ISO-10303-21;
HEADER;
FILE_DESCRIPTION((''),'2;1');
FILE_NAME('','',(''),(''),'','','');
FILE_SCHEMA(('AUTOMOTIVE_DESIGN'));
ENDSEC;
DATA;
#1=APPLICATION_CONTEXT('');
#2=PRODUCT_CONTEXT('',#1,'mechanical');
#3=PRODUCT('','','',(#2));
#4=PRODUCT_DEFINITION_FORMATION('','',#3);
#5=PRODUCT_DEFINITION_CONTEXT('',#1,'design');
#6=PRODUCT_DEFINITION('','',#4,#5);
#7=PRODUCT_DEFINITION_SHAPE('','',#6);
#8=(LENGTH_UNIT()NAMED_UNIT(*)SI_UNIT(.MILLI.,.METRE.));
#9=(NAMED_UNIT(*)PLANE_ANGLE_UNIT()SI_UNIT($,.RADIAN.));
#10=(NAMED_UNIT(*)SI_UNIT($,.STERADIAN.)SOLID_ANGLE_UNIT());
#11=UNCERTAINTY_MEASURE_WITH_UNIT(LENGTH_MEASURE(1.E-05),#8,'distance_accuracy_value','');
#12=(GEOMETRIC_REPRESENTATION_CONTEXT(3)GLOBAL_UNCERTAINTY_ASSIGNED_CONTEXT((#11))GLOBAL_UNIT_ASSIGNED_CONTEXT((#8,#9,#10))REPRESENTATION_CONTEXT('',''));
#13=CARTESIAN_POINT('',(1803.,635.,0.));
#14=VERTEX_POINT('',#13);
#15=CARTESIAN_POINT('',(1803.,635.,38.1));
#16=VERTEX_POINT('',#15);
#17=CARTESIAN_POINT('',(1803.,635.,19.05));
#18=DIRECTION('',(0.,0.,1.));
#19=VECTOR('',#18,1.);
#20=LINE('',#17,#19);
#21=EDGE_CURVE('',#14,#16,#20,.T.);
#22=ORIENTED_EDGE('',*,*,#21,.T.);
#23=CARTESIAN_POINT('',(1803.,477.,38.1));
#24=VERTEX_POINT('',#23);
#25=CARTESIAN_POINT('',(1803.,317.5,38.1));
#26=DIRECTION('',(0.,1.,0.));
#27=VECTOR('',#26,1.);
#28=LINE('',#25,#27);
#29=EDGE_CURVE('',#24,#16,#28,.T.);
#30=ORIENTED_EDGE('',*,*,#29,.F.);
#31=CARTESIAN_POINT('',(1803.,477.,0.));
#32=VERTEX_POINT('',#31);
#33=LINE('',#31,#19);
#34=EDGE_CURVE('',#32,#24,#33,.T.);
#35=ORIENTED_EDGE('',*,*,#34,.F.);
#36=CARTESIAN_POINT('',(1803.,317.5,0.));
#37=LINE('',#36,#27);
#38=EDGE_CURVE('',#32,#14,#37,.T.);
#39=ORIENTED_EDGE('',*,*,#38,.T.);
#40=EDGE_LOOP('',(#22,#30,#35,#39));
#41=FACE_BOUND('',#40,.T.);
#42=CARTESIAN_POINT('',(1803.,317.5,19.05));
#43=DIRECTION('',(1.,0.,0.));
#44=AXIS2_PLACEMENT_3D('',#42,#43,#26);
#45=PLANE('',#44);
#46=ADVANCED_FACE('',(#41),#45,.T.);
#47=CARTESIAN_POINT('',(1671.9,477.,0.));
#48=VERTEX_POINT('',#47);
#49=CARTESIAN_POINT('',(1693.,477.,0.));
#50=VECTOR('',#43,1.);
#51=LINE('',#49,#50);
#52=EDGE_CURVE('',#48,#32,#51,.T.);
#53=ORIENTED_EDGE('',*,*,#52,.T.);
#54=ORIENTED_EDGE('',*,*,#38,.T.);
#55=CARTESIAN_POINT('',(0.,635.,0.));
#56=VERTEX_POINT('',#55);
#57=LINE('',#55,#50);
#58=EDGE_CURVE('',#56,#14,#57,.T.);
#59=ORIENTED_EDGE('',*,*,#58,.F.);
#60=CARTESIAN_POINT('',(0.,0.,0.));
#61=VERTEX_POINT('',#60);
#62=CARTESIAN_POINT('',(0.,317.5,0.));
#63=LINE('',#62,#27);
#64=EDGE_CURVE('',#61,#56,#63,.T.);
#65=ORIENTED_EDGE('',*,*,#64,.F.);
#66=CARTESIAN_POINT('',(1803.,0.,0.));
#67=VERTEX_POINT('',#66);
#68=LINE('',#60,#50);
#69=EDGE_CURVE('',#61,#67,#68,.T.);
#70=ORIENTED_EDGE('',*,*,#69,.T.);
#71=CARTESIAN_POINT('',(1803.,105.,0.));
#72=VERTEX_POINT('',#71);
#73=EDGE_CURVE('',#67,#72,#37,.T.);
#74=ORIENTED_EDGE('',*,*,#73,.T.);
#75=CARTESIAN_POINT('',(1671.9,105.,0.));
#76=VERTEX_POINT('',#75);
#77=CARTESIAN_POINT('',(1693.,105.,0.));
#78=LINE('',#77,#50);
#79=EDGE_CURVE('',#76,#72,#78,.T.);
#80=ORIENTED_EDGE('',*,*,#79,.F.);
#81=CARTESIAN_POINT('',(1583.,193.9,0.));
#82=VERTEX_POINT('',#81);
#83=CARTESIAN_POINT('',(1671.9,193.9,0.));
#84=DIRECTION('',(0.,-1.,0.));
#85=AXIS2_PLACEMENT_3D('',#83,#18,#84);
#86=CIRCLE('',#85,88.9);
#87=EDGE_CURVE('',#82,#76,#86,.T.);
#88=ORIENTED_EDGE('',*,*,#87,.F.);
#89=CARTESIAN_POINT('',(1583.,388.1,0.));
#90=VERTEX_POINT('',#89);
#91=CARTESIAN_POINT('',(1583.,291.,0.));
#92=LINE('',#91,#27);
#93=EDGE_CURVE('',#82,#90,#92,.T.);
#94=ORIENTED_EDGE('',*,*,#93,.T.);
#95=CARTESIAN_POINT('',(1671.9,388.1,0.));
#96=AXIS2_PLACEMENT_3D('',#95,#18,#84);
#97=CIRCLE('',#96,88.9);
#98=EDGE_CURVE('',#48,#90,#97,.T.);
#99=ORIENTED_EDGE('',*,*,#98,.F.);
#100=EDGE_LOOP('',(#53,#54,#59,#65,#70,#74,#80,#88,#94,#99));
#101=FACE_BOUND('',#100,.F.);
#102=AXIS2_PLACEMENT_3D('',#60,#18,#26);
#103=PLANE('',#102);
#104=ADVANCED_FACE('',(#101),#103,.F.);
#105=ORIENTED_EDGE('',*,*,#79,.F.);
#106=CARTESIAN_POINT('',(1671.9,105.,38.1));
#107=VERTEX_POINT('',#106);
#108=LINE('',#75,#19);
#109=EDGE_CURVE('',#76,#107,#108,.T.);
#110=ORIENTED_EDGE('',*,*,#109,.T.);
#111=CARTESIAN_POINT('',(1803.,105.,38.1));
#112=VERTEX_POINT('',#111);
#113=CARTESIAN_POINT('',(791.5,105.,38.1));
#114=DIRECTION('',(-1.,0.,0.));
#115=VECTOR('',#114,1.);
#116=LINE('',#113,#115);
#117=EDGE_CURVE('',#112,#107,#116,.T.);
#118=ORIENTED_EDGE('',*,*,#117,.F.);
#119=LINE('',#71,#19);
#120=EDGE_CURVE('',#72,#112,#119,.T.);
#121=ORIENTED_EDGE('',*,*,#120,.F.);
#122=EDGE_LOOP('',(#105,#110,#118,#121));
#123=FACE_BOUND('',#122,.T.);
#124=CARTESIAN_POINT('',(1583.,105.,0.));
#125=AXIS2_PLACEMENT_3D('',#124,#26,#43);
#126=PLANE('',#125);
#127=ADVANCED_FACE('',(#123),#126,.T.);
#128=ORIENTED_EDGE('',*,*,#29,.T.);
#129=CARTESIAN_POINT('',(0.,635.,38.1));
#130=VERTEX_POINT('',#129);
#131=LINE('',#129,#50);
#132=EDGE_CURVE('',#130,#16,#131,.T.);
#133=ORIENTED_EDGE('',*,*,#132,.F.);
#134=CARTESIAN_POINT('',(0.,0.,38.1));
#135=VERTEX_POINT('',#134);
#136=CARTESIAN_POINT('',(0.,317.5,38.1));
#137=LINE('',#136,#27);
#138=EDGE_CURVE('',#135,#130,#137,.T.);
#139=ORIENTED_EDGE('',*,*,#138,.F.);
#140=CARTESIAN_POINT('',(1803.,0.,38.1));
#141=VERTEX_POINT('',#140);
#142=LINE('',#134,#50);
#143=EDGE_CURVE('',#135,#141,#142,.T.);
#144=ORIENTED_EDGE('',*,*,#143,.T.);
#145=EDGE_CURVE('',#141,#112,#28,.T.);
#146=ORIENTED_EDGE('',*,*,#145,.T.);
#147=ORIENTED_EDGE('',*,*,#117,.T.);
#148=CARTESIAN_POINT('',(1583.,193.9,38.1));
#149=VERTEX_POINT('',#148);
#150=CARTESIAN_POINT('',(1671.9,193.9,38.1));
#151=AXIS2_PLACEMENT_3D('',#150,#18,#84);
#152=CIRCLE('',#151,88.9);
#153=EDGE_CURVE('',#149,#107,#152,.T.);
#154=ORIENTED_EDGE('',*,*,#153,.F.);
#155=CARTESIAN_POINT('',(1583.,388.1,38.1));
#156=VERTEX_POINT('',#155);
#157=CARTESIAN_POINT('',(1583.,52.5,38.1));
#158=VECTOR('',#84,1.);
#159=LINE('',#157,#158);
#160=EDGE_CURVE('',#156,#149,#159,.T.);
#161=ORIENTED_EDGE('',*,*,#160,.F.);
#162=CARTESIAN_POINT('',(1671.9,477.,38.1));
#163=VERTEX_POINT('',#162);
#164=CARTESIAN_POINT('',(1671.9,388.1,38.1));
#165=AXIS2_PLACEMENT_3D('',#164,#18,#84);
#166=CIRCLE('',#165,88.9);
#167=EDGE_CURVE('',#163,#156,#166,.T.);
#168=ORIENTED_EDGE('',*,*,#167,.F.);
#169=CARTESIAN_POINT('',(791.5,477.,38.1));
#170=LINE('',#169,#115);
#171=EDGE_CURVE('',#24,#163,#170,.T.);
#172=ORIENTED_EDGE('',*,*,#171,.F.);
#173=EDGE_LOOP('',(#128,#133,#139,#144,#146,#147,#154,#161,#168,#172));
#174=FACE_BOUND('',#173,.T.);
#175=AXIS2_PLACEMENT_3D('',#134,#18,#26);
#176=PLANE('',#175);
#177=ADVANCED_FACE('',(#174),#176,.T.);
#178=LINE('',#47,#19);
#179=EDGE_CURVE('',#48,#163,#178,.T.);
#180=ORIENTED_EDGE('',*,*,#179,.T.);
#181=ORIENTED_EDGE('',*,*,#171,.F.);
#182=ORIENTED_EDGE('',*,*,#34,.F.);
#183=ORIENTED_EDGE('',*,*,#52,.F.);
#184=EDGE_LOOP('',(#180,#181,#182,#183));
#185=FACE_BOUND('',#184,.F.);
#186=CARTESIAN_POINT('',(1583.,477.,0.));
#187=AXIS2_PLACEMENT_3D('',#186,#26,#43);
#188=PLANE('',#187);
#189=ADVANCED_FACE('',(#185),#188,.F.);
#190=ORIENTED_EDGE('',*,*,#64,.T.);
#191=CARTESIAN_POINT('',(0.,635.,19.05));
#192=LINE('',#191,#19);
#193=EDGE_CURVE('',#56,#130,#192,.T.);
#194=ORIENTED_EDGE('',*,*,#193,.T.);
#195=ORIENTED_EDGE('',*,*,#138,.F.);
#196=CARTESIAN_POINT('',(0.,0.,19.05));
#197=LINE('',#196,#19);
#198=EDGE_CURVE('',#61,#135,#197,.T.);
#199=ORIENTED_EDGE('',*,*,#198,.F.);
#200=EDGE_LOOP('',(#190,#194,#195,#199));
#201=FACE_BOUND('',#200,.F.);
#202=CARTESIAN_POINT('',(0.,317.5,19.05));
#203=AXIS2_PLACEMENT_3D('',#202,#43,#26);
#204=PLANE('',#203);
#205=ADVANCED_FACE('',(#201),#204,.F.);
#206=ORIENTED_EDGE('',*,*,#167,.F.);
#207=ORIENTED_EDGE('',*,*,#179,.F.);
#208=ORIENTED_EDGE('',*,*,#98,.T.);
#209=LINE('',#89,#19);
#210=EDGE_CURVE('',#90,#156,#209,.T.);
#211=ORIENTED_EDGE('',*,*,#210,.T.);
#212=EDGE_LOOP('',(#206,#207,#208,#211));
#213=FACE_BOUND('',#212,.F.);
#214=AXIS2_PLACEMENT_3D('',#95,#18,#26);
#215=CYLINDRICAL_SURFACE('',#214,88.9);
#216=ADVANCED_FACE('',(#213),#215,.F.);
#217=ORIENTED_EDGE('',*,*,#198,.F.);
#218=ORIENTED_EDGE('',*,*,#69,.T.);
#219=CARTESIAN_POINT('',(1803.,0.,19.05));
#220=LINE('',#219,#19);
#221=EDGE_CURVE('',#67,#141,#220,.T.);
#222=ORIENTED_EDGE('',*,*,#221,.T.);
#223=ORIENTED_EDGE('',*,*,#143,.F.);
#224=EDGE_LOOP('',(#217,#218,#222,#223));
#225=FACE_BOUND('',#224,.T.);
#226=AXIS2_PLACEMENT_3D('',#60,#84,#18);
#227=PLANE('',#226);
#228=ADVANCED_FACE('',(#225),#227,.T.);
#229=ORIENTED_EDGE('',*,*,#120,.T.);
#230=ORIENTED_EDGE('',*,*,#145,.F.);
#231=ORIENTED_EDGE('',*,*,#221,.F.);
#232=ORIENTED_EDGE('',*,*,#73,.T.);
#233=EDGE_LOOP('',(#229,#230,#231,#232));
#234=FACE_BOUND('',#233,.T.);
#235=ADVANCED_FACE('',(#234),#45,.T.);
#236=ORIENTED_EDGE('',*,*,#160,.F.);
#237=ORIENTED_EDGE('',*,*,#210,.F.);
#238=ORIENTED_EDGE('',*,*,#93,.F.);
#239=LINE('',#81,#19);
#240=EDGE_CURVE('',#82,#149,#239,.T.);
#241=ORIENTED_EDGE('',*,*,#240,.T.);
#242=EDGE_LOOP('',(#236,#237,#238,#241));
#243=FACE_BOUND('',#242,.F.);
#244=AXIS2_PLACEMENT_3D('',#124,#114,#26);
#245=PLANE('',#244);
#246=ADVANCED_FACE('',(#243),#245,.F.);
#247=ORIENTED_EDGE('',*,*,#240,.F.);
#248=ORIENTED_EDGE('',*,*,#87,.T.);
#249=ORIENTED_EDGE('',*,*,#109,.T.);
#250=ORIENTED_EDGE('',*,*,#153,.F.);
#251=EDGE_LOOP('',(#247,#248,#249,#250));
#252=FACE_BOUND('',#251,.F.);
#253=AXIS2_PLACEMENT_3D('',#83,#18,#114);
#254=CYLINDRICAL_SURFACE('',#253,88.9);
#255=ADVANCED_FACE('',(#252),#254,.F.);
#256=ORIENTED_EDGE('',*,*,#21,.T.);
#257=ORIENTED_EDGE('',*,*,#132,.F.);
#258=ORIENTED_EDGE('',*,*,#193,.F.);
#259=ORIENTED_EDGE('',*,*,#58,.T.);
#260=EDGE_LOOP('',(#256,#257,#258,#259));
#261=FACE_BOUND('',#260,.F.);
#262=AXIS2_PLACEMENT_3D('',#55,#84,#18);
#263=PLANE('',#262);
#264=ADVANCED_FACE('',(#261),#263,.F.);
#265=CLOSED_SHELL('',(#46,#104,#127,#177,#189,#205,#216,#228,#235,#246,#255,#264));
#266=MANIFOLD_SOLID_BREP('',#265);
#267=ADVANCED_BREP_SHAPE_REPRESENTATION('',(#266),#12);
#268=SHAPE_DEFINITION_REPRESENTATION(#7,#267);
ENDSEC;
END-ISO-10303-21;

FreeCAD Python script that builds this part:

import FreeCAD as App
import Part
import Sketcher

V = App.Vector


def edges_at(feature, points):
    """Names of the edges that pass closest to the given points."""
    edges = feature.Shape.Edges
    near = lambda p: min(range(len(edges)), key=lambda i: edges[i].distToShape(Part.Vertex(*p))[0])
    return sorted({f"Edge{near(p) + 1}" for p in points})

doc = App.newDocument("Part")
body = doc.addObject("PartDesign::Body", "Body")

sketch1 = doc.addObject("Sketcher::SketchObject", "Sketch")
body.addObject(sketch1)
sketch1.AttachmentSupport = (doc.YZ_Plane, [""])
sketch1.MapMode = "FlatFace"
sketch1.addGeometry([
    Part.LineSegment(V(0, 38, 0), V(0, 0, 0)),
    Part.LineSegment(V(0, 0, 0), V(635, 0, 0)),
    Part.LineSegment(V(635, 0, 0), V(635, 38, 0)),
    Part.LineSegment(V(635, 38, 0), V(0, 38, 0)),
], False)
sketch1.addConstraint([
    Sketcher.Constraint("Coincident", 0, 2, 1, 1),
    Sketcher.Constraint("Coincident", 1, 2, 2, 1),
    Sketcher.Constraint("Coincident", 2, 2, 3, 1),
    Sketcher.Constraint("Coincident", 3, 2, 0, 1),
    Sketcher.Constraint("Vertical", 0),
    Sketcher.Constraint("Horizontal", 1),
    Sketcher.Constraint("Vertical", 2),
    Sketcher.Constraint("Horizontal", 3),
    Sketcher.Constraint("Coincident", 0, 2, -1, 1),
    Sketcher.Constraint("DistanceX", 1, 1, 1, 2, 635.0),
    Sketcher.Constraint("DistanceY", 0, 2, 0, 1, 38.1),
])
pad1 = doc.addObject("PartDesign::Pad", "Pad")
body.addObject(pad1)
pad1.Profile = sketch1
pad1.Length = 1803

sketch2 = doc.addObject("Sketcher::SketchObject", "Sketch001")
body.addObject(sketch2)
sketch2.AttachmentSupport = (doc.XY_Plane, [""])
sketch2.MapMode = "FlatFace"
sketch2.addGeometry([
    Part.LineSegment(V(1583, 477, 0), V(1583, 105, 0)),
    Part.LineSegment(V(1583, 105, 0), V(1803, 105, 0)),
    Part.LineSegment(V(1803, 105, 0), V(1803, 477, 0)),
    Part.LineSegment(V(1803, 477, 0), V(1583, 477, 0)),
], False)
sketch2.addConstraint([
    Sketcher.Constraint("Coincident", 0, 2, 1, 1),
    Sketcher.Constraint("Coincident", 1, 2, 2, 1),
    Sketcher.Constraint("Coincident", 2, 2, 3, 1),
    Sketcher.Constraint("Coincident", 3, 2, 0, 1),
    Sketcher.Constraint("Vertical", 0),
    Sketcher.Constraint("Horizontal", 1),
    Sketcher.Constraint("Vertical", 2),
    Sketcher.Constraint("Horizontal", 3),
    Sketcher.Constraint("DistanceX", 1, 1, 1, 2, 220.0),
    Sketcher.Constraint("DistanceY", 0, 2, 0, 1, 372.0),
    Sketcher.Constraint("DistanceX", -1, 1, 0, 2, 1583.0),
    Sketcher.Constraint("DistanceY", -1, 1, 0, 2, 105.0),
])
pocket1 = doc.addObject("PartDesign::Pocket", "Pocket")
body.addObject(pocket1)
pocket1.Profile = sketch2
pocket1.Type = "ThroughAll"
pocket1.Reversed = True
doc.recompute()

fillet = doc.addObject("PartDesign::Fillet", "Fillet")
body.addObject(fillet)
fillet.Base = (pocket1, edges_at(pocket1, [(1583, 477, 19.05), (1583, 105, 19.05)]))
fillet.Radius = 88.9

doc.recompute()
